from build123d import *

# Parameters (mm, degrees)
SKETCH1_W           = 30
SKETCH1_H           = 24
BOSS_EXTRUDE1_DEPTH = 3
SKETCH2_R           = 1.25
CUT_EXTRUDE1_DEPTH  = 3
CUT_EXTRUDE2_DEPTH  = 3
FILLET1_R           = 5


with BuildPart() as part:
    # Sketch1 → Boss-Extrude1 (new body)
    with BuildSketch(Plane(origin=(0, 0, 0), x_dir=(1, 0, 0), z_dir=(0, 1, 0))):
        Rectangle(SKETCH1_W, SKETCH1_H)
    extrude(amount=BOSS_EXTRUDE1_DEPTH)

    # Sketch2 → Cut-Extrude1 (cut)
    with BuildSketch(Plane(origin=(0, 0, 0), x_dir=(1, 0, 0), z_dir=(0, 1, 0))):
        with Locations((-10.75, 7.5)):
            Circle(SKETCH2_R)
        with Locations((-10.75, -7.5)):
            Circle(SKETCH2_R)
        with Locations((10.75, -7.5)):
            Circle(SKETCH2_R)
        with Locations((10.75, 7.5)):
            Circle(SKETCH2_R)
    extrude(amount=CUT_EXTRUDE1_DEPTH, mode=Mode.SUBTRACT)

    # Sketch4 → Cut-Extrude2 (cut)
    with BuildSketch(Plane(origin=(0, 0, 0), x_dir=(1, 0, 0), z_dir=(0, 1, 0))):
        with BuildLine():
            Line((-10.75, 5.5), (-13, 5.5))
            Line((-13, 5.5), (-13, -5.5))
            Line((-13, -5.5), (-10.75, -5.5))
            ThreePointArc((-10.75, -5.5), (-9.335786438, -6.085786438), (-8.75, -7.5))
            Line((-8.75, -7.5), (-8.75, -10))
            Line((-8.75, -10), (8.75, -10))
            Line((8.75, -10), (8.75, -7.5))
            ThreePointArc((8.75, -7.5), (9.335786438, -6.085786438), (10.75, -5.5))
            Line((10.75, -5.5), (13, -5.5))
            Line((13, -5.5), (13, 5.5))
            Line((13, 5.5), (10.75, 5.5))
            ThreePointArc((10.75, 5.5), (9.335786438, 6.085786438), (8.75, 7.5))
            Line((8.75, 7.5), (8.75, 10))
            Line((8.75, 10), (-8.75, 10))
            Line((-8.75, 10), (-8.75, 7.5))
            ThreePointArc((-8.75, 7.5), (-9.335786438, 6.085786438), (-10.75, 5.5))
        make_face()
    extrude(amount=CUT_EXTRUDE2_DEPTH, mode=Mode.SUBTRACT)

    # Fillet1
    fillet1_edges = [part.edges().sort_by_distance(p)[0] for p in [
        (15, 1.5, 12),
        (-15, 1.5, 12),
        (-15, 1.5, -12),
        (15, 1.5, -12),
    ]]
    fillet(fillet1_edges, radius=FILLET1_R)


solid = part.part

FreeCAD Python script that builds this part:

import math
import FreeCAD as App
import Part
import Sketcher

V = App.Vector


def edges_at(feature, points):
    """Names of the edges that pass closest to the given points."""
    edges = feature.Shape.Edges
    near = lambda p: min(range(len(edges)), key=lambda i: edges[i].distToShape(Part.Vertex(*p))[0])
    return sorted({f"Edge{near(p) + 1}" for p in points})


def add_polygon(sketch, points):
    """Adds a closed chain of lines whose ends are joined by coincident constraints."""
    first, n = sketch.GeometryCount, len(points)
    for a, b in zip(points, points[1:] + points[:1]):
        sketch.addGeometry(Part.LineSegment(App.Vector(*a, 0), App.Vector(*b, 0)), False)
    for i in range(n):
        sketch.addConstraint(Sketcher.Constraint("Coincident", first + i, 2, first + (i + 1) % n, 1))

doc = App.newDocument("Part")
body = doc.addObject("PartDesign::Body", "Body")

# Sketch on XZ plane
sketch1 = body.newObject("Sketcher::SketchObject", "Sketch")
sketch1.AttachmentSupport = (doc.getObject("XZ_Plane"), [""])
sketch1.MapMode = "FlatFace"
add_polygon(sketch1, [(-15, -12), (-15, 12), (15, 12), (15, -12)])  # lines 0-3
sketch1.addConstraint([
    Sketcher.Constraint("Vertical", 0),
    Sketcher.Constraint("Horizontal", 1),
    Sketcher.Constraint("Vertical", 2),
    Sketcher.Constraint("Horizontal", 3),
    Sketcher.Constraint("Symmetric", 0, 2, 2, 2, -1, 1),
    Sketcher.Constraint("DistanceX", 1, 1, 1, 2, 30.0),
    Sketcher.Constraint("DistanceY", 0, 1, 0, 2, 24.0),
])
pad1 = body.newObject("PartDesign::Pad", "Pad")
pad1.Profile = sketch1
pad1.Length = 3
pad1.Reversed = True

# Sketch on XZ plane
sketch2 = body.newObject("Sketcher::SketchObject", "Sketch001")
sketch2.AttachmentSupport = (doc.getObject("XZ_Plane"), [""])
sketch2.MapMode = "FlatFace"
sketch2.addGeometry([
    Part.Circle(V(-10.75, -7.5, 0), V(0, 0, 1), 1.25),
    Part.Circle(V(-10.75, 7.5, 0), V(0, 0, 1), 1.25),
    Part.Circle(V(10.75, 7.5, 0), V(0, 0, 1), 1.25),
    Part.Circle(V(10.75, -7.5, 0), V(0, 0, 1), 1.25),
], False)
sketch2.addConstraint([
    Sketcher.Constraint("Equal", 0, 1),
    Sketcher.Constraint("Equal", 1, 2),
    Sketcher.Constraint("Equal", 2, 3),
    Sketcher.Constraint("Symmetric", 0, 3, 2, 3, -1, 1),
    Sketcher.Constraint("Symmetric", 1, 3, 3, 3, -1, 1),
    Sketcher.Constraint("Symmetric", 1, 3, 2, 3, -2),
    Sketcher.Constraint("Diameter", 0, 2.5),
    Sketcher.Constraint("DistanceY", 0, 3, 1, 3, 15.0),
    Sketcher.Constraint("DistanceX", 1, 3, 2, 3, 21.5),
])
pocket1 = body.newObject("PartDesign::Pocket", "Pocket")
pocket1.Profile = sketch2
pocket1.Length = 3

# Sketch on XZ plane
sketch3 = body.newObject("Sketcher::SketchObject", "Sketch002")
sketch3.AttachmentSupport = (doc.getObject("XZ_Plane"), [""])
sketch3.MapMode = "FlatFace"
sketch3.addGeometry([
    Part.LineSegment(V(-10.75, -5.5, 0), V(-13, -5.5, 0)),  # 0
    Part.LineSegment(V(-13, -5.5, 0), V(-13, 5.5, 0)),  # 1
    Part.LineSegment(V(-13, 5.5, 0), V(-10.75, 5.5, 0)),  # 2
    Part.ArcOfCircle(Part.Circle(V(-10.75, 7.5, 0), V(0, 0, 1), 2), math.radians(-90), math.radians(0)),  # 3
    Part.LineSegment(V(-8.75, 7.5, 0), V(-8.75, 10, 0)),  # 4
    Part.LineSegment(V(-8.75, 10, 0), V(8.75, 10, 0)),  # 5
    Part.LineSegment(V(8.75, 10, 0), V(8.75, 7.5, 0)),  # 6
    Part.ArcOfCircle(Part.Circle(V(10.75, 7.5, 0), V(0, 0, 1), 2), math.radians(-180), math.radians(-90)),  # 7
    Part.LineSegment(V(10.75, 5.5, 0), V(13, 5.5, 0)),  # 8
    Part.LineSegment(V(13, 5.5, 0), V(13, -5.5, 0)),  # 9
    Part.LineSegment(V(13, -5.5, 0), V(10.75, -5.5, 0)),  # 10
    Part.ArcOfCircle(Part.Circle(V(10.75, -7.5, 0), V(0, 0, 1), 2), math.radians(90), math.radians(180)),  # 11
    Part.LineSegment(V(8.75, -7.5, 0), V(8.75, -10, 0)),  # 12
    Part.LineSegment(V(8.75, -10, 0), V(-8.75, -10, 0)),  # 13
    Part.LineSegment(V(-8.75, -10, 0), V(-8.75, -7.5, 0)),  # 14
    Part.ArcOfCircle(Part.Circle(V(-10.75, -7.5, 0), V(0, 0, 1), 2), math.radians(0), math.radians(90)),  # 15
], False)
sketch3.addConstraint([
    Sketcher.Constraint("Coincident", 0, 2, 1, 1),
    Sketcher.Constraint("Coincident", 1, 2, 2, 1),
    Sketcher.Constraint("Tangent", 2, 2, 3, 1),
    Sketcher.Constraint("Tangent", 3, 2, 4, 1),
    Sketcher.Constraint("Coincident", 4, 2, 5, 1),
    Sketcher.Constraint("Coincident", 5, 2, 6, 1),
    Sketcher.Constraint("Tangent", 6, 2, 7, 1),
    Sketcher.Constraint("Tangent", 7, 2, 8, 1),
    Sketcher.Constraint("Coincident", 8, 2, 9, 1),
    Sketcher.Constraint("Coincident", 9, 2, 10, 1),
    Sketcher.Constraint("Tangent", 10, 2, 11, 1),
    Sketcher.Constraint("Tangent", 11, 2, 12, 1),
    Sketcher.Constraint("Coincident", 12, 2, 13, 1),
    Sketcher.Constraint("Coincident", 13, 2, 14, 1),
    Sketcher.Constraint("Tangent", 14, 2, 15, 1),
    Sketcher.Constraint("Tangent", 15, 2, 0, 1),
    Sketcher.Constraint("Horizontal", 0),
    Sketcher.Constraint("Vertical", 1),
    Sketcher.Constraint("Horizontal", 2),
    Sketcher.Constraint("Vertical", 4),
    Sketcher.Constraint("Horizontal", 5),
    Sketcher.Constraint("Vertical", 6),
    Sketcher.Constraint("Horizontal", 8),
    Sketcher.Constraint("Vertical", 9),
    Sketcher.Constraint("Horizontal", 10),
    Sketcher.Constraint("Vertical", 12),
    Sketcher.Constraint("Horizontal", 13),
    Sketcher.Constraint("Vertical", 14),
    Sketcher.Constraint("Equal", 3, 7),
    Sketcher.Constraint("Equal", 7, 11),
    Sketcher.Constraint("Equal", 11, 15),
    Sketcher.Constraint("Symmetric", 3, 3, 11, 3, -1, 1),
    Sketcher.Constraint("Symmetric", 7, 3, 15, 3, -1, 1),
    Sketcher.Constraint("Symmetric", 3, 3, 7, 3, -2),
    Sketcher.Constraint("Equal", 2, 8),
    Sketcher.Constraint("Equal", 6, 12),
    Sketcher.Constraint("Radius", 3, 2.0),
    Sketcher.Constraint("DistanceY", 1, 1, 1, 2, 11.0),
    Sketcher.Constraint("DistanceX", 5, 1, 5, 2, 17.5),
    Sketcher.Constraint("DistanceY", 4, 1, 4, 2, 2.5),
    Sketcher.Constraint("DistanceX", 0, 2, -1, 1, 13.0),
])
pocket2 = body.newObject("PartDesign::Pocket", "Pocket001")
pocket2.Profile = sketch3
pocket2.Length = 3
doc.recompute()

fillet = body.newObject("PartDesign::Fillet", "Fillet")
fillet.Base = (pocket2, edges_at(pocket2, [
    (15, 1.5, 12),
    (-15, 1.5, 12),
    (-15, 1.5, -12),
    (15, 1.5, -12),
]))
fillet.Radius = 5

doc.recompute()
